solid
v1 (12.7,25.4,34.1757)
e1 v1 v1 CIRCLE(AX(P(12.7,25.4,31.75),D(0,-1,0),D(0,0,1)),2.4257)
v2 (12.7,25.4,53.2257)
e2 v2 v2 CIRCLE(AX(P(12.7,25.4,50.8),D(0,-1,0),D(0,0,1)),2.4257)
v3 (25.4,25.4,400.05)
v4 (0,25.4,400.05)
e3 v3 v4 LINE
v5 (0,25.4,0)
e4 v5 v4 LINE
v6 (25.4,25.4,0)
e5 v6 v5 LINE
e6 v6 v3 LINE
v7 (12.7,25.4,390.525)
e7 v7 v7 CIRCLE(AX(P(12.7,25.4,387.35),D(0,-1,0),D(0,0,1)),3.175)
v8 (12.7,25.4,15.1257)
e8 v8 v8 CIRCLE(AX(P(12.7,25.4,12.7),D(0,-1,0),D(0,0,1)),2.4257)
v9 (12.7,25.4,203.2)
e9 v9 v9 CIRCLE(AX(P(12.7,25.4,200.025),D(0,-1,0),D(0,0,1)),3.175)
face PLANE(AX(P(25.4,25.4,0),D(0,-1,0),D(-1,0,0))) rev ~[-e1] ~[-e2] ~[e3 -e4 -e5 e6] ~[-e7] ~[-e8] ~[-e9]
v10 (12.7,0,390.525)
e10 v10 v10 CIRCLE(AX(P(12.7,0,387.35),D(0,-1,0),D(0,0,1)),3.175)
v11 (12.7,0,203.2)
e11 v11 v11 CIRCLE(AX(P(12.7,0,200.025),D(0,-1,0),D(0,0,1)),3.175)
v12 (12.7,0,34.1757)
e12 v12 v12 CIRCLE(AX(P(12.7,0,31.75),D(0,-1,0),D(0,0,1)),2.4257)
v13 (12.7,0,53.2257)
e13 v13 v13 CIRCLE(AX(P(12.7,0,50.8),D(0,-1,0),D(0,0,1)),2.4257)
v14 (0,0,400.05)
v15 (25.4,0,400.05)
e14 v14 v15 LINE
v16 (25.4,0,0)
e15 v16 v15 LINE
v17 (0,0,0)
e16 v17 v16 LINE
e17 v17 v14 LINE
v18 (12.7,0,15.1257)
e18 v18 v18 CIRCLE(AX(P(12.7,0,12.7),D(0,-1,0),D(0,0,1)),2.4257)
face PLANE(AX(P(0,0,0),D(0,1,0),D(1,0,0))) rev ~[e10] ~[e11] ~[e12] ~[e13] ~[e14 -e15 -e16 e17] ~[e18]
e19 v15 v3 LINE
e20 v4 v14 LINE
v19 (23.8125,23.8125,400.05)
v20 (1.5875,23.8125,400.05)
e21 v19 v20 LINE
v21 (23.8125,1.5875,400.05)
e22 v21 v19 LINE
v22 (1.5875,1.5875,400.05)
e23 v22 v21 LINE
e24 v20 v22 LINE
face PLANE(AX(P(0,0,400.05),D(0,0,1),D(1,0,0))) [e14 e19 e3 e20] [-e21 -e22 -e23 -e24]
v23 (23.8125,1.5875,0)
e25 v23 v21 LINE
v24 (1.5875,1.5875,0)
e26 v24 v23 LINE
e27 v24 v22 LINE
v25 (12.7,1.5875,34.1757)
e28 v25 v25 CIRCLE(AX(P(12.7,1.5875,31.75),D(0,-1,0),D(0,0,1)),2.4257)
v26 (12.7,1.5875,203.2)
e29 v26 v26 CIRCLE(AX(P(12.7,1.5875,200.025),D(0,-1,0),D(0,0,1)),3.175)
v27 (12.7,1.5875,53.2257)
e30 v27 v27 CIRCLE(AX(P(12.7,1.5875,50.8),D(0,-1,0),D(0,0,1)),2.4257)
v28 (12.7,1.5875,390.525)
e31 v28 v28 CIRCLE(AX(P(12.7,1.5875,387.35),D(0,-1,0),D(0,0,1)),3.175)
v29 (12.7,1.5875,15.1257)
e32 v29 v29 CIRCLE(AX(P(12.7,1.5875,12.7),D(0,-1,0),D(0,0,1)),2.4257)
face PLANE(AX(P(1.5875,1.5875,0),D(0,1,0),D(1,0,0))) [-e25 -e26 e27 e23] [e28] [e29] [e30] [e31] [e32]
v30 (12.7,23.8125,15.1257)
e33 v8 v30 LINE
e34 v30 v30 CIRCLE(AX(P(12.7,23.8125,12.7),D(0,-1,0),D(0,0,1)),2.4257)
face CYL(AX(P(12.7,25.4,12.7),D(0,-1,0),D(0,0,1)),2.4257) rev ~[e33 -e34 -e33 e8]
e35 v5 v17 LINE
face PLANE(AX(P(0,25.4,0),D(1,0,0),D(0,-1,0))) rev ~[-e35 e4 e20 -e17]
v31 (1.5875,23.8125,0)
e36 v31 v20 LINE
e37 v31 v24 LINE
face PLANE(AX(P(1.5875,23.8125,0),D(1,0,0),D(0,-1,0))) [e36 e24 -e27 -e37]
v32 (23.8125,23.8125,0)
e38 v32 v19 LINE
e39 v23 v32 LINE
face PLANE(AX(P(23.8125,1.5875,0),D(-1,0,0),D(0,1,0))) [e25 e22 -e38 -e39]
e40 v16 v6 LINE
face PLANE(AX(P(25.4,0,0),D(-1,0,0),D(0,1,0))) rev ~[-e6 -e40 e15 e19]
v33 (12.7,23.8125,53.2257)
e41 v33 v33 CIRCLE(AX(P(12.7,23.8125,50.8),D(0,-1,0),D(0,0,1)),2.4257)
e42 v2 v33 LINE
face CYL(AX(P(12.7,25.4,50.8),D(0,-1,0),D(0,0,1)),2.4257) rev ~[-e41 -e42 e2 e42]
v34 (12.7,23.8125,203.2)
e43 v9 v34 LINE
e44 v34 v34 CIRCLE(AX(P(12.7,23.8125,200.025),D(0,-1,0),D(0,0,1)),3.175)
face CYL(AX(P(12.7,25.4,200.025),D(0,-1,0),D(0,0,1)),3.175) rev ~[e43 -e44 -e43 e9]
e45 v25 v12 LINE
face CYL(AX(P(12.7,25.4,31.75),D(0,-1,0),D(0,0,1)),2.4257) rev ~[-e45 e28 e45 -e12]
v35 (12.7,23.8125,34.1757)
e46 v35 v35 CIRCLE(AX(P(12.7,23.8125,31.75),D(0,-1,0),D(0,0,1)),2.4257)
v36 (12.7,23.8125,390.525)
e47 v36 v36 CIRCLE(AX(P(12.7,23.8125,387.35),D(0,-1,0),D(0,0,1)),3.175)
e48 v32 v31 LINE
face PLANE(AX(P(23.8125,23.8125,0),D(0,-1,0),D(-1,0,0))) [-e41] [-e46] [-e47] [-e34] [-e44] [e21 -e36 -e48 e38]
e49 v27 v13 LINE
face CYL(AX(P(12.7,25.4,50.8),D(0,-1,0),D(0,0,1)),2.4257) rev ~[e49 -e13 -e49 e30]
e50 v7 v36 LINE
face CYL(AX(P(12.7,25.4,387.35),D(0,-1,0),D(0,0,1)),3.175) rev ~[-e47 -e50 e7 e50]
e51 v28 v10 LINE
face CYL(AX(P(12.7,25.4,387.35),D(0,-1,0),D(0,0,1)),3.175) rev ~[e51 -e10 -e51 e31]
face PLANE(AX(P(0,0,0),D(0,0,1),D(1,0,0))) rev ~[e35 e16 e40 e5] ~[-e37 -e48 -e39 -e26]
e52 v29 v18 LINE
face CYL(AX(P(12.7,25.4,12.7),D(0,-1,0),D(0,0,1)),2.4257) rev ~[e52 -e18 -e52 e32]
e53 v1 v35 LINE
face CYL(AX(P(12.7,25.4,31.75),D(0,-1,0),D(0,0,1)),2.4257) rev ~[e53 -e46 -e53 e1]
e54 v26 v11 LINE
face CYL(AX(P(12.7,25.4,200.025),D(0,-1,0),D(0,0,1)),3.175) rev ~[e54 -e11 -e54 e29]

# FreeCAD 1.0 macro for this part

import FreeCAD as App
import Part
import Sketcher
Q = App.Units.Quantity

doc = App.newDocument("Part")
body = doc.addObject("PartDesign::Body", "Body")

sketch1 = body.newObject("Sketcher::SketchObject", "Sketch")
sketch1.AttachmentSupport = (doc.getObject("XY_Plane"), [""])
sketch1.MapMode = "FlatFace"
sketch1.addGeometry(Part.LineSegment(App.Vector(0, 25, 0), App.Vector(0, 0, 0)), False)
sketch1.addGeometry(Part.LineSegment(App.Vector(0, 0, 0), App.Vector(25, 0, 0)), False)
sketch1.addGeometry(Part.LineSegment(App.Vector(25, 0, 0), App.Vector(25, 25, 0)), False)
sketch1.addGeometry(Part.LineSegment(App.Vector(25, 25, 0), App.Vector(0, 25, 0)), False)
sketch1.addGeometry(Part.LineSegment(App.Vector(24, 2, 0), App.Vector(2, 2, 0)), False)
sketch1.addGeometry(Part.LineSegment(App.Vector(2, 2, 0), App.Vector(2, 24, 0)), False)
sketch1.addGeometry(Part.LineSegment(App.Vector(2, 24, 0), App.Vector(24, 24, 0)), False)
sketch1.addGeometry(Part.LineSegment(App.Vector(24, 24, 0), App.Vector(24, 2, 0)), False)
sketch1.addConstraint(Sketcher.Constraint("Coincident", 0, 2, 1, 1))
sketch1.addConstraint(Sketcher.Constraint("Coincident", 1, 2, 2, 1))
sketch1.addConstraint(Sketcher.Constraint("Coincident", 2, 2, 3, 1))
sketch1.addConstraint(Sketcher.Constraint("Coincident", 3, 2, 0, 1))
sketch1.addConstraint(Sketcher.Constraint("Coincident", 4, 2, 5, 1))
sketch1.addConstraint(Sketcher.Constraint("Coincident", 5, 2, 6, 1))
sketch1.addConstraint(Sketcher.Constraint("Coincident", 6, 2, 7, 1))
sketch1.addConstraint(Sketcher.Constraint("Coincident", 7, 2, 4, 1))
sketch1.addConstraint(Sketcher.Constraint("Vertical", 0))
sketch1.addConstraint(Sketcher.Constraint("Horizontal", 1))
sketch1.addConstraint(Sketcher.Constraint("Vertical", 2))
sketch1.addConstraint(Sketcher.Constraint("Horizontal", 3))
sketch1.addConstraint(Sketcher.Constraint("Horizontal", 4))
sketch1.addConstraint(Sketcher.Constraint("Vertical", 5))
sketch1.addConstraint(Sketcher.Constraint("Horizontal", 6))
sketch1.addConstraint(Sketcher.Constraint("Vertical", 7))
sketch1.addConstraint(Sketcher.Constraint("Coincident", 0, 2, -1, 1))
sketch1.addConstraint(Sketcher.Constraint("Equal", 3, 0))
sketch1.addConstraint(Sketcher.Constraint("Equal", 6, 5))
sketch1.addConstraint(Sketcher.Constraint("DistanceX", 1, 1, 1, 2, Q("1 in")))
sketch1.addConstraint(Sketcher.Constraint("DistanceX", -1, 1, 4, 2, Q("0.0625 in")))
sketch1.addConstraint(Sketcher.Constraint("DistanceY", -1, 1, 4, 2, Q("0.0625 in")))
sketch1.addConstraint(Sketcher.Constraint("DistanceY", 5, 2, 3, 2, Q("0.0625 in")))
pad1 = body.newObject("PartDesign::Pad", "Pad")
pad1.Profile = sketch1
pad1.Length = Q("15.75 in")

sketch2 = body.newObject("Sketcher::SketchObject", "Sketch001")
sketch2.AttachmentSupport = (doc.getObject("XZ_Plane"), [""])
sketch2.MapMode = "FlatFace"
sketch2.AttachmentOffset = App.Placement(App.Vector(0, 0, -1 * 25.4), App.Rotation())
sketch2.addGeometry(Part.Circle(App.Vector(12.7, 200, 0), App.Vector(0, 0, 1), 3.2), False)
sketch2.addConstraint(Sketcher.Constraint("Diameter", 0, Q("0.25 in")))
sketch2.addConstraint(Sketcher.Constraint("DistanceX", -1, 1, 0, 3, Q("0.5 in")))
sketch2.addConstraint(Sketcher.Constraint("DistanceY", -1, 1, 0, 3, Q("7.875 in")))
doc.recompute()
hole = body.newObject("PartDesign::Hole", "Hole")
hole.Profile = sketch2
hole.ThreadType = "None"
hole.Diameter = Q("0.25 in")
hole.DepthType = "ThroughAll"
hole.Reversed = True

sketch3 = body.newObject("Sketcher::SketchObject", "Sketch002")
sketch3.AttachmentSupport = (doc.getObject("XZ_Plane"), [""])
sketch3.MapMode = "FlatFace"
sketch3.AttachmentOffset = App.Placement(App.Vector(0, 0, -1 * 25.4), App.Rotation())
sketch3.addGeometry(Part.Circle(App.Vector(12.7, 387.4, 0), App.Vector(0, 0, 1), 3.2), False)
sketch3.addConstraint(Sketcher.Constraint("Diameter", 0, Q("0.25 in")))
sketch3.addConstraint(Sketcher.Constraint("DistanceX", -1, 1, 0, 3, Q("0.5 in")))
sketch3.addConstraint(Sketcher.Constraint("DistanceY", -1, 1, 0, 3, Q("15.25 in")))
doc.recompute()
hole2 = body.newObject("PartDesign::Hole", "Hole001")
hole2.Profile = sketch3
hole2.ThreadType = "None"
hole2.Diameter = Q("0.25 in")
hole2.DepthType = "ThroughAll"
hole2.Reversed = True

sketch4 = body.newObject("Sketcher::SketchObject", "Sketch003")
sketch4.AttachmentSupport = (doc.getObject("XZ_Plane"), [""])
sketch4.MapMode = "FlatFace"
sketch4.AttachmentOffset = App.Placement(App.Vector(0, 0, -1 * 25.4), App.Rotation())
sketch4.addGeometry(Part.Circle(App.Vector(12.7, 12.7, 0), App.Vector(0, 0, 1), 2.4), False)
sketch4.addConstraint(Sketcher.Constraint("Diameter", 0, Q("0.191 in")))
sketch4.addConstraint(Sketcher.Constraint("DistanceX", -1, 1, 0, 3, Q("0.5 in")))
sketch4.addConstraint(Sketcher.Constraint("DistanceY", -1, 1, 0, 3, Q("0.5 in")))
doc.recompute()
hole3 = body.newObject("PartDesign::Hole", "Hole002")
hole3.Profile = sketch4
hole3.ThreadType = "None"
hole3.Diameter = Q("0.191 in")
hole3.DepthType = "ThroughAll"
hole3.Reversed = True
doc.recompute()

linearpattern = body.newObject("PartDesign::LinearPattern", "LinearPattern")
linearpattern.Originals = [hole3]
linearpattern.Direction = (doc.getObject("Z_Axis"), [""])
linearpattern.Mode = "offset"
linearpattern.Offset = Q("0.75 in")
linearpattern.Occurrences = 3
body.Tip = linearpattern

doc.recompute()
